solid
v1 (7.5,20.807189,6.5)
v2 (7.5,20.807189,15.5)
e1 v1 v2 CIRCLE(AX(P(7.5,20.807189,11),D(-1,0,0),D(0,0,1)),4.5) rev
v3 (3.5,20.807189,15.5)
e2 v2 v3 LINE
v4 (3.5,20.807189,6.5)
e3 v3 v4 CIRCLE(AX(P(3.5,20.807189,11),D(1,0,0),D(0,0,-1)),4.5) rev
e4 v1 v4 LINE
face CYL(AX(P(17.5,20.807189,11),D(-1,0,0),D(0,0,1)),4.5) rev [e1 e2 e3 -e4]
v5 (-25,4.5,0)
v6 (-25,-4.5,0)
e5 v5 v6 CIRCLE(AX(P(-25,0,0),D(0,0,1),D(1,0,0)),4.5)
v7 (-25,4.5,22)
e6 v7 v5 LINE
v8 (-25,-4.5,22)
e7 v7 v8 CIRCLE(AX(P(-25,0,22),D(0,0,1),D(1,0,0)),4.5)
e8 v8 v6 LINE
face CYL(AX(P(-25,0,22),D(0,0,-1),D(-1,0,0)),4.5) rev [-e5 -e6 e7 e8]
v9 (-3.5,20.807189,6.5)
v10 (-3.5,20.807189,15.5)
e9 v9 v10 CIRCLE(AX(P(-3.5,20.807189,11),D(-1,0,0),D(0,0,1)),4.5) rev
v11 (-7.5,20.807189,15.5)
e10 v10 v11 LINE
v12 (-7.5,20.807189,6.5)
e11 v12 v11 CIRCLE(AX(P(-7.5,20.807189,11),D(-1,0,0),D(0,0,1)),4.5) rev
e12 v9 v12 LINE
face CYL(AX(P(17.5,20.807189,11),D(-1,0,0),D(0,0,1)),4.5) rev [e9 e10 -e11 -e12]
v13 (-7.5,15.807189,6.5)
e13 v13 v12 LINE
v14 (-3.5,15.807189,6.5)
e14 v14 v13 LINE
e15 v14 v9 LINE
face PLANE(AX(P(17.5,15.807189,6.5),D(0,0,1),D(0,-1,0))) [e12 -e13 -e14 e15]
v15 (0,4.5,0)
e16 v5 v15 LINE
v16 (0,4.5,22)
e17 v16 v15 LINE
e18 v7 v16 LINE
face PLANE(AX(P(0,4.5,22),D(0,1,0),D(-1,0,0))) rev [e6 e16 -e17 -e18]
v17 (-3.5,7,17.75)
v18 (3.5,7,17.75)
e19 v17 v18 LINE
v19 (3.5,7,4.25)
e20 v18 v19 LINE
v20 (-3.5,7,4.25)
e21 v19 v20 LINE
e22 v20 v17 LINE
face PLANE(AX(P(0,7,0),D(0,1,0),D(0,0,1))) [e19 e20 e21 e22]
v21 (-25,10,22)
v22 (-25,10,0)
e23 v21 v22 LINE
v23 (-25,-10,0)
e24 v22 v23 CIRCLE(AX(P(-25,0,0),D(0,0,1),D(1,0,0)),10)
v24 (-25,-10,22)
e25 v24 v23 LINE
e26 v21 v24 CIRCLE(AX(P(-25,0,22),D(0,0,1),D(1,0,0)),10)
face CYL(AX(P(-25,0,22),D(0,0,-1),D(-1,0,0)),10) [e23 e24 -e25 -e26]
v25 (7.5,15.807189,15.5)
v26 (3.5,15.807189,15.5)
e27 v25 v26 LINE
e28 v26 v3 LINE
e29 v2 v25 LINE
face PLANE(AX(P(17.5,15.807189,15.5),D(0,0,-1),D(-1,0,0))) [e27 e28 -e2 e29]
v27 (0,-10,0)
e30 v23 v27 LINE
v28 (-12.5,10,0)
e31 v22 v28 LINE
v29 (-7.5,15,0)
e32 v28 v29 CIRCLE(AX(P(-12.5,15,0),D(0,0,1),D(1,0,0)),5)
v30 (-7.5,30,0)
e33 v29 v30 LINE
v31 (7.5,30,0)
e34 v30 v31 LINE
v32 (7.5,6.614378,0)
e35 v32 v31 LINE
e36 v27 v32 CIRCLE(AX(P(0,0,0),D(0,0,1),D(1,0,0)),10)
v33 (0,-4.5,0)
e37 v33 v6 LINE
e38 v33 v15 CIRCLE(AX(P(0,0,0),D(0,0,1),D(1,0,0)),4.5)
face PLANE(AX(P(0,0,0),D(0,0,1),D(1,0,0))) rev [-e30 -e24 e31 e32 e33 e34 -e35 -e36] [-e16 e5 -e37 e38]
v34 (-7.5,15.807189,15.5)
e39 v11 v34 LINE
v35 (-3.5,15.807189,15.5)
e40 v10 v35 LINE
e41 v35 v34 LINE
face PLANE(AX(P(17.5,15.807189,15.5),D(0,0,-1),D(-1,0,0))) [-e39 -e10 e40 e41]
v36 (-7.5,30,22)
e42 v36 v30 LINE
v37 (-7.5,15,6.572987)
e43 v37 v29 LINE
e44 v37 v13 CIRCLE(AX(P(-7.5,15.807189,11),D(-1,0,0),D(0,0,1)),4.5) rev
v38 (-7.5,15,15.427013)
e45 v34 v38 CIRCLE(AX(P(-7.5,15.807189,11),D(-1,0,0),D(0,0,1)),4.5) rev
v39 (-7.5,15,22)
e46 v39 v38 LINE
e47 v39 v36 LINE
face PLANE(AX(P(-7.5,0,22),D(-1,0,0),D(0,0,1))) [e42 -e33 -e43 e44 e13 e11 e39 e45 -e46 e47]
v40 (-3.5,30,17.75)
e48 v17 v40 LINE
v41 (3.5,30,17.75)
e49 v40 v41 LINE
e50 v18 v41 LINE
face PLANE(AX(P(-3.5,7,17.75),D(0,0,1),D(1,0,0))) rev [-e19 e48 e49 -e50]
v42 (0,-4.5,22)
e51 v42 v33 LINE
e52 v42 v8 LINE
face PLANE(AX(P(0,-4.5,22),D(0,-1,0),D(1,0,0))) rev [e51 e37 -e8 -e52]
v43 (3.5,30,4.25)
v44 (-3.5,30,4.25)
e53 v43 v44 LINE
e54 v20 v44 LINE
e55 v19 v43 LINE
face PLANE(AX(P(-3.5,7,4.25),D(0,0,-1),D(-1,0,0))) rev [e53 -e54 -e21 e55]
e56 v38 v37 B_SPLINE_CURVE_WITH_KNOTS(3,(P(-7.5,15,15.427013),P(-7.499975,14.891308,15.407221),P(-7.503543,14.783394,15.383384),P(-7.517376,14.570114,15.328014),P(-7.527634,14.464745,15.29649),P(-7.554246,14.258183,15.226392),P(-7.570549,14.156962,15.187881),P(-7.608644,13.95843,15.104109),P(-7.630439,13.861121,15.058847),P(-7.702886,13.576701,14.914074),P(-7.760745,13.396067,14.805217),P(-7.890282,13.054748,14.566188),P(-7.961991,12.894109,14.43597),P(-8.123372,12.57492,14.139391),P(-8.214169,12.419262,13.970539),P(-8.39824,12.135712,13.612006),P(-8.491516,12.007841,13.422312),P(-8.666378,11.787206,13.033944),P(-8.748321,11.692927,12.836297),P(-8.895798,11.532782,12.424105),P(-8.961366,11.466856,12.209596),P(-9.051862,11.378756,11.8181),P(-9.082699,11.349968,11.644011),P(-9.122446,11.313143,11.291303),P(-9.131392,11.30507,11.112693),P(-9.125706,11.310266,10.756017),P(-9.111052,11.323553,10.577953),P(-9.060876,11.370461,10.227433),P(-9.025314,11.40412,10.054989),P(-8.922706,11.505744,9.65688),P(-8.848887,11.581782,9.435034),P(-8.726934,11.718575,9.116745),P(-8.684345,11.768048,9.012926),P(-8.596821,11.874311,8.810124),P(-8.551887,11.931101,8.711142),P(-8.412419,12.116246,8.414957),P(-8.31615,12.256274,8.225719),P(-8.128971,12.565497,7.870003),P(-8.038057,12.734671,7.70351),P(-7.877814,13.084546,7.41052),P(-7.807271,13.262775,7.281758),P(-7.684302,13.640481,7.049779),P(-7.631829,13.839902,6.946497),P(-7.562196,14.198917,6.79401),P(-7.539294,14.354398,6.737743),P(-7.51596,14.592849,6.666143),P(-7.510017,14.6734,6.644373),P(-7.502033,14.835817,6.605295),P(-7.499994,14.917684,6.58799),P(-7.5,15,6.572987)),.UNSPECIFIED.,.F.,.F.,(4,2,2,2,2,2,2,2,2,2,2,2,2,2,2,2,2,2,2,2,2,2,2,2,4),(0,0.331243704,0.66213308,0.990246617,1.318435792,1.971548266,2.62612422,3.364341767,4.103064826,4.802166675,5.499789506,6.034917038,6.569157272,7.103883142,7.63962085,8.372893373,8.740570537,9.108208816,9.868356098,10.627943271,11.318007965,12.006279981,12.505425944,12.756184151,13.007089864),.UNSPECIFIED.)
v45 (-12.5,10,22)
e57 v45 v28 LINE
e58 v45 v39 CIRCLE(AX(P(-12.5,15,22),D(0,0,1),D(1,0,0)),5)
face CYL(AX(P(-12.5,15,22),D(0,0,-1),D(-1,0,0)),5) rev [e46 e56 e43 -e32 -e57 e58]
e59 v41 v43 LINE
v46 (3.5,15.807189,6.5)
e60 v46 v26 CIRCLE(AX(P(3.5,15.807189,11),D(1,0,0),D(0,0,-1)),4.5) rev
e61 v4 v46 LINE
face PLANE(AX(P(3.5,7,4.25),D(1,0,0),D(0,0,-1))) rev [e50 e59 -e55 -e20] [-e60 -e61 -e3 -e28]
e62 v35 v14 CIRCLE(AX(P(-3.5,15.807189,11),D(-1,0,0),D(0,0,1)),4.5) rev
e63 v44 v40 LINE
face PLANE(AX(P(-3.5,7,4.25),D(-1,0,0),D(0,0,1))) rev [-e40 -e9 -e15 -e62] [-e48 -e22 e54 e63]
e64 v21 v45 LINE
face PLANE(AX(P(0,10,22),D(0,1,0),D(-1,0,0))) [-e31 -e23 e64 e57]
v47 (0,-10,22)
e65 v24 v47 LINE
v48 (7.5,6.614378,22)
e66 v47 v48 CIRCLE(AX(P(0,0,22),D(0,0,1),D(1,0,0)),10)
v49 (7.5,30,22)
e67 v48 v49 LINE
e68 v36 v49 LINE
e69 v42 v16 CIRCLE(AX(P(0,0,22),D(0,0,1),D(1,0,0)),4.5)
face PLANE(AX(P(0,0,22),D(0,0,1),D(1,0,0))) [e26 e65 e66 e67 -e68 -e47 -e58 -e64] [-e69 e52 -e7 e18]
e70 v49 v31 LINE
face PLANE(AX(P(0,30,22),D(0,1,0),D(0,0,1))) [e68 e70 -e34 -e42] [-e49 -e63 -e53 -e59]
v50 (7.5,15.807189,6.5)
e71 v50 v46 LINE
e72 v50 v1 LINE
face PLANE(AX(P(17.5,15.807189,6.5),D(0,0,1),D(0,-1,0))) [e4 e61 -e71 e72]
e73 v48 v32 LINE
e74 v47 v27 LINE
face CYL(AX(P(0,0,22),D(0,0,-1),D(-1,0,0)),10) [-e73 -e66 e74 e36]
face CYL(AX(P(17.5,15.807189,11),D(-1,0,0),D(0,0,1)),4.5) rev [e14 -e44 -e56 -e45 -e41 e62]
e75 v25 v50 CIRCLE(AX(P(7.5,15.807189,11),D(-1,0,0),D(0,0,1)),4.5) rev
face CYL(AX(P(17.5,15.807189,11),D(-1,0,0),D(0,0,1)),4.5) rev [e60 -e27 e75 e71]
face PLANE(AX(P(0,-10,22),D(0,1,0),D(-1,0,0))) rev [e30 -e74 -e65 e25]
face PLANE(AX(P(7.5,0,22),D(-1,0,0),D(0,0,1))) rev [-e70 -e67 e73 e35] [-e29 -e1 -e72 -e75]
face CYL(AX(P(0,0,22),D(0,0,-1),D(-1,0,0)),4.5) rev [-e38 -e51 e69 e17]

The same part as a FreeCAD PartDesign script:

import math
import FreeCAD as App
import Part
import Sketcher

V = App.Vector

doc = App.newDocument("Part")
body = doc.addObject("PartDesign::Body", "Body")

sketch1 = body.newObject("Sketcher::SketchObject", "Sketch")
sketch1.AttachmentSupport = (doc.getObject("XY_Plane"), [""])
sketch1.MapMode = "FlatFace"
sketch1.addGeometry([
    Part.LineSegment(V(7.5, 6.6, 0), V(7.5, 30, 0)),
    Part.LineSegment(V(7.5, 30, 0), V(-7.5, 30, 0)),
    Part.LineSegment(V(-7.5, 30, 0), V(-7.5, 15, 0)),
    Part.ArcOfCircle(Part.Circle(V(-12.5, 15, 0), V(0, 0, 1), 5), math.radians(-90), math.radians(0)),
    Part.LineSegment(V(-12.5, 10, 0), V(-25, 10, 0)),
    Part.ArcOfCircle(Part.Circle(V(-25, 0, 0), V(0, 0, 1), 10), math.radians(90), math.radians(270)),
    Part.LineSegment(V(-25, -10, 0), V(0, -10, 0)),
    Part.ArcOfCircle(Part.Circle(V(0, 0, 0), V(0, 0, 1), 10), math.radians(-90), math.radians(41)),
    Part.ArcOfCircle(Part.Circle(V(-25, 0, 0), V(0, 0, 1), 4.5), math.radians(90), math.radians(270)),
    Part.LineSegment(V(-25, 4.5, 0), V(0, 4.5, 0)),
    Part.ArcOfCircle(Part.Circle(V(0, 0, 0), V(0, 0, 1), 4.5), math.radians(-90), math.radians(90)),
    Part.LineSegment(V(0, -4.5, 0), V(-25, -4.5, 0)),
], False)
sketch1.addConstraint([
    Sketcher.Constraint("Coincident", 0, 2, 1, 1),
    Sketcher.Constraint("Coincident", 1, 2, 2, 1),
    Sketcher.Constraint("Tangent", 2, 2, 3, 2),
    Sketcher.Constraint("Tangent", 3, 1, 4, 1),
    Sketcher.Constraint("Tangent", 4, 2, 5, 1),
    Sketcher.Constraint("Tangent", 5, 2, 6, 1),
    Sketcher.Constraint("Tangent", 6, 2, 7, 1),
    Sketcher.Constraint("Coincident", 7, 2, 0, 1),
    Sketcher.Constraint("Tangent", 8, 1, 9, 1),
    Sketcher.Constraint("Tangent", 9, 2, 10, 2),
    Sketcher.Constraint("Tangent", 10, 1, 11, 1),
    Sketcher.Constraint("Tangent", 11, 2, 8, 2),
    Sketcher.Constraint("Vertical", 0),
    Sketcher.Constraint("Horizontal", 1),
    Sketcher.Constraint("Vertical", 2),
    Sketcher.Constraint("Horizontal", 4),
    Sketcher.Constraint("Horizontal", 6),
    Sketcher.Constraint("Horizontal", 9),
    Sketcher.Constraint("Horizontal", 11),
    Sketcher.Constraint("Coincident", 7, 3, -1, 1),
    Sketcher.Constraint("Coincident", 10, 3, -1, 1),
    Sketcher.Constraint("Coincident", 8, 3, 5, 3),
    Sketcher.Constraint("Equal", 1, 2),
    Sketcher.Constraint("Radius", 3, 5.0),
    Sketcher.Constraint("Radius", 5, 10.0),
    Sketcher.Constraint("Radius", 8, 4.5),
    Sketcher.Constraint("DistanceX", 1, 2, 1, 1, 15.0),
    Sketcher.Constraint("DistanceX", 6, 1, 6, 2, 25.0),
    Sketcher.Constraint("DistanceX", 4, 2, 4, 1, 12.5),
])
pad1 = body.newObject("PartDesign::Pad", "Pad")
pad1.Profile = sketch1
pad1.Length = 22

sketch2 = body.newObject("Sketcher::SketchObject", "Sketch001")
sketch2.AttachmentSupport = (doc.getObject("XZ_Plane"), [""])
sketch2.MapMode = "FlatFace"
sketch2.AttachmentOffset = App.Placement(V(0, 0, -30), App.Rotation())
sketch2.addGeometry([
    Part.LineSegment(V(-4, 4, 0), V(-4, 18, 0)),
    Part.LineSegment(V(-4, 18, 0), V(4, 18, 0)),
    Part.LineSegment(V(4, 18, 0), V(4, 4, 0)),
    Part.LineSegment(V(4, 4, 0), V(-4, 4, 0)),
], False)
sketch2.addConstraint([
    Sketcher.Constraint("Coincident", 0, 2, 1, 1),
    Sketcher.Constraint("Coincident", 1, 2, 2, 1),
    Sketcher.Constraint("Coincident", 2, 2, 3, 1),
    Sketcher.Constraint("Coincident", 3, 2, 0, 1),
    Sketcher.Constraint("Vertical", 0),
    Sketcher.Constraint("Horizontal", 1),
    Sketcher.Constraint("Vertical", 2),
    Sketcher.Constraint("Horizontal", 3),
    Sketcher.Constraint("DistanceX", 1, 1, 1, 2, 7.0),
    Sketcher.Constraint("DistanceY", 0, 1, 0, 2, 13.5),
    Sketcher.Constraint("DistanceX", 0, 2, -1, 1, 3.5),
    Sketcher.Constraint("DistanceY", -1, 1, 0, 2, 17.75),
])
pocket1 = body.newObject("PartDesign::Pocket", "Pocket")
pocket1.Profile = sketch2
pocket1.Length = 23
pocket1.Reversed = True

sketch3 = body.newObject("Sketcher::SketchObject", "Sketch002")
sketch3.AttachmentSupport = (doc.getObject("YZ_Plane"), [""])
sketch3.MapMode = "FlatFace"
sketch3.AttachmentOffset = App.Placement(V(0, 0, 7.5), App.Rotation())
sketch3.addGeometry([
    Part.LineSegment(V(20.8, 15.5, 0), V(15.8, 15.5, 0)),
    Part.ArcOfCircle(Part.Circle(V(15.8, 11, 0), V(0, 0, 1), 4.5), math.radians(90), math.radians(270)),
    Part.LineSegment(V(15.8, 6.5, 0), V(20.8, 6.5, 0)),
    Part.ArcOfCircle(Part.Circle(V(20.8, 11, 0), V(0, 0, 1), 4.5), math.radians(-90), math.radians(90)),
], False)
sketch3.addConstraint([
    Sketcher.Constraint("Tangent", 0, 2, 1, 1),
    Sketcher.Constraint("Tangent", 1, 2, 2, 1),
    Sketcher.Constraint("Tangent", 2, 2, 3, 1),
    Sketcher.Constraint("Tangent", 3, 2, 0, 1),
    Sketcher.Constraint("Horizontal", 0),
    Sketcher.Constraint("Horizontal", 2),
    Sketcher.Constraint("Radius", 1, 4.5),
    Sketcher.Constraint("DistanceX", 0, 2, 0, 1, 5.0),
    Sketcher.Constraint("DistanceY", -1, 1, 1, 3, 11.0),
    Sketcher.Constraint("DistanceX", -1, 1, 1, 3, 15.807189),
])
pocket2 = body.newObject("PartDesign::Pocket", "Pocket001")
pocket2.Profile = sketch3
pocket2.Type = "ThroughAll"
pocket2.Midplane = True

doc.recompute()
